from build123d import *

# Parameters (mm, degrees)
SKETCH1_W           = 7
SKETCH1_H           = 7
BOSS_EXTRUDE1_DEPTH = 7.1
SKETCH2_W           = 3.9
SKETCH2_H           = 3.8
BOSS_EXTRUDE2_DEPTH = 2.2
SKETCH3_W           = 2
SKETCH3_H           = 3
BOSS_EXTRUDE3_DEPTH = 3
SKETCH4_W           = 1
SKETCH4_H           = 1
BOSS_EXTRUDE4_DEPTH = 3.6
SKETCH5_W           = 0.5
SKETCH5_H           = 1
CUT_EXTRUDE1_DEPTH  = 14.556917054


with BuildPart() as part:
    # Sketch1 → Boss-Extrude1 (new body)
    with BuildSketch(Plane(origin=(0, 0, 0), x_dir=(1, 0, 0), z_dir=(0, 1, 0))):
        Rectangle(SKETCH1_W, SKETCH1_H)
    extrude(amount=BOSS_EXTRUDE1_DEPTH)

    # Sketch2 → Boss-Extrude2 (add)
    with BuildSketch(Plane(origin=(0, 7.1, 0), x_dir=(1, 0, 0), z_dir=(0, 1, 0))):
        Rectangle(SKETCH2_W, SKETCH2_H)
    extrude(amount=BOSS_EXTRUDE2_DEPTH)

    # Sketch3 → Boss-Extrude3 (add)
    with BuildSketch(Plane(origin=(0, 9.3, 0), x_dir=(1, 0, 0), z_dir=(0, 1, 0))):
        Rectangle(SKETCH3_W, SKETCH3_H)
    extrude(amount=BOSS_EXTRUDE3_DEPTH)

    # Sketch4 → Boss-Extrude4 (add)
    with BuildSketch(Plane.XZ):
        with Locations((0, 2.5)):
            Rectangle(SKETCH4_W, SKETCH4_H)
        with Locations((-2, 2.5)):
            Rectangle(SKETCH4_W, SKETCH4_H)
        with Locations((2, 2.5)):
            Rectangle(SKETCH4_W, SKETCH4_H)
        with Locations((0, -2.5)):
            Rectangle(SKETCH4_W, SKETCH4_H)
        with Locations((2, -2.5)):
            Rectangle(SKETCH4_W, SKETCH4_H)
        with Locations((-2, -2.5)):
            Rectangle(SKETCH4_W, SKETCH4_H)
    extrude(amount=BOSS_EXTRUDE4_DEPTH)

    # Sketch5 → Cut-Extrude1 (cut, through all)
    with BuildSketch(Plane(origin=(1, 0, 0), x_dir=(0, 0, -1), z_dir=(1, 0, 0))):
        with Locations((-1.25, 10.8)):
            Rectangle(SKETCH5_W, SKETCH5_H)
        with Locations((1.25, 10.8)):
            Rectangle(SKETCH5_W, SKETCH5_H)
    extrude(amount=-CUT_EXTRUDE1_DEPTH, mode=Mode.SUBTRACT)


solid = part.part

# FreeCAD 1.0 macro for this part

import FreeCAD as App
import Part
import Sketcher
from FreeCAD import Vector


def add_polygon(sketch, points):
    """Adds a closed chain of lines whose ends are joined by coincident constraints."""
    first, n = sketch.GeometryCount, len(points)
    for a, b in zip(points, points[1:] + points[:1]):
        sketch.addGeometry(Part.LineSegment(App.Vector(*a, 0), App.Vector(*b, 0)), False)
    for i in range(n):
        sketch.addConstraint(Sketcher.Constraint("Coincident", first + i, 2, first + (i + 1) % n, 1))

doc = App.newDocument("Part")
body = doc.addObject("PartDesign::Body", "Body")

sketch1 = body.newObject("Sketcher::SketchObject", "Sketch")
sketch1.AttachmentSupport = (doc.getObject("XZ_Plane"), [""])
sketch1.MapMode = "FlatFace"
add_polygon(sketch1, [(-3.5, -3.5), (-3.5, 3.5), (3.5, 3.5), (3.5, -3.5)])
sketch1.addConstraint(Sketcher.Constraint("Vertical", 0))
sketch1.addConstraint(Sketcher.Constraint("Horizontal", 1))
sketch1.addConstraint(Sketcher.Constraint("Vertical", 2))
sketch1.addConstraint(Sketcher.Constraint("Horizontal", 3))
sketch1.addConstraint(Sketcher.Constraint("Symmetric", 0, 2, 2, 2, -1, 1))
sketch1.addConstraint(Sketcher.Constraint("Equal", 3, 0))
sketch1.addConstraint(Sketcher.Constraint("DistanceX", 1, 1, 1, 2, 7.0))
pad1 = body.newObject("PartDesign::Pad", "Pad")
pad1.Profile = sketch1
pad1.Length = 7.1
pad1.Reversed = True

sketch2 = body.newObject("Sketcher::SketchObject", "Sketch001")
sketch2.AttachmentSupport = (doc.getObject("XZ_Plane"), [""])
sketch2.MapMode = "FlatFace"
sketch2.AttachmentOffset = App.Placement(Vector(0, 0, -7.1), App.Rotation())
add_polygon(sketch2, [(-1.95, -1.9), (-1.95, 1.9), (1.95, 1.9), (1.95, -1.9)])
sketch2.addConstraint(Sketcher.Constraint("Vertical", 0))
sketch2.addConstraint(Sketcher.Constraint("Horizontal", 1))
sketch2.addConstraint(Sketcher.Constraint("Vertical", 2))
sketch2.addConstraint(Sketcher.Constraint("Horizontal", 3))
sketch2.addConstraint(Sketcher.Constraint("Symmetric", 0, 2, 2, 2, -1, 1))
sketch2.addConstraint(Sketcher.Constraint("DistanceX", 1, 1, 1, 2, 3.9))
sketch2.addConstraint(Sketcher.Constraint("DistanceY", 0, 1, 0, 2, 3.8))
pad2 = body.newObject("PartDesign::Pad", "Pad001")
pad2.Profile = sketch2
pad2.Length = 2.2
pad2.Reversed = True

sketch3 = body.newObject("Sketcher::SketchObject", "Sketch002")
sketch3.AttachmentSupport = (doc.getObject("XZ_Plane"), [""])
sketch3.MapMode = "FlatFace"
sketch3.AttachmentOffset = App.Placement(Vector(0, 0, -9.3), App.Rotation())
add_polygon(sketch3, [(-1, -1.5), (-1, 1.5), (1, 1.5), (1, -1.5)])
sketch3.addConstraint(Sketcher.Constraint("Vertical", 0))
sketch3.addConstraint(Sketcher.Constraint("Horizontal", 1))
sketch3.addConstraint(Sketcher.Constraint("Vertical", 2))
sketch3.addConstraint(Sketcher.Constraint("Horizontal", 3))
sketch3.addConstraint(Sketcher.Constraint("Symmetric", 0, 2, 2, 2, -1, 1))
sketch3.addConstraint(Sketcher.Constraint("DistanceX", 1, 1, 1, 2, 2.0))
sketch3.addConstraint(Sketcher.Constraint("DistanceY", 0, 1, 0, 2, 3.0))
pad3 = body.newObject("PartDesign::Pad", "Pad002")
pad3.Profile = sketch3
pad3.Length = 3
pad3.Reversed = True

sketch4 = body.newObject("Sketcher::SketchObject", "Sketch003")
sketch4.AttachmentSupport = (doc.getObject("XZ_Plane"), [""])
sketch4.MapMode = "FlatFace"
add_polygon(sketch4, [(-0.5, 3), (-0.5, 2), (0.5, 2), (0.5, 3)])
add_polygon(sketch4, [(-2.5, 3), (-2.5, 2), (-1.5, 2), (-1.5, 3)])
add_polygon(sketch4, [(1.5, 3), (1.5, 2), (2.5, 2), (2.5, 3)])
add_polygon(sketch4, [(-0.5, -2), (-0.5, -3), (0.5, -3), (0.5, -2)])
add_polygon(sketch4, [(1.5, -2), (1.5, -3), (2.5, -3), (2.5, -2)])
add_polygon(sketch4, [(-2.5, -2), (-2.5, -3), (-1.5, -3), (-1.5, -2)])
sketch4.addConstraint(Sketcher.Constraint("Vertical", 0))
sketch4.addConstraint(Sketcher.Constraint("Horizontal", 1))
sketch4.addConstraint(Sketcher.Constraint("Vertical", 2))
sketch4.addConstraint(Sketcher.Constraint("Horizontal", 3))
sketch4.addConstraint(Sketcher.Constraint("Vertical", 4))
sketch4.addConstraint(Sketcher.Constraint("Horizontal", 5))
sketch4.addConstraint(Sketcher.Constraint("Vertical", 6))
sketch4.addConstraint(Sketcher.Constraint("Horizontal", 7))
sketch4.addConstraint(Sketcher.Constraint("Vertical", 8))
sketch4.addConstraint(Sketcher.Constraint("Horizontal", 9))
sketch4.addConstraint(Sketcher.Constraint("Vertical", 10))
sketch4.addConstraint(Sketcher.Constraint("Horizontal", 11))
sketch4.addConstraint(Sketcher.Constraint("Vertical", 12))
sketch4.addConstraint(Sketcher.Constraint("Horizontal", 13))
sketch4.addConstraint(Sketcher.Constraint("Vertical", 14))
sketch4.addConstraint(Sketcher.Constraint("Horizontal", 15))
sketch4.addConstraint(Sketcher.Constraint("Vertical", 16))
sketch4.addConstraint(Sketcher.Constraint("Horizontal", 17))
sketch4.addConstraint(Sketcher.Constraint("Vertical", 18))
sketch4.addConstraint(Sketcher.Constraint("Horizontal", 19))
sketch4.addConstraint(Sketcher.Constraint("Vertical", 20))
sketch4.addConstraint(Sketcher.Constraint("Horizontal", 21))
sketch4.addConstraint(Sketcher.Constraint("Vertical", 22))
sketch4.addConstraint(Sketcher.Constraint("Horizontal", 23))
sketch4.addConstraint(Sketcher.Constraint("Symmetric", 2, 2, 12, 2, -1, 1))
sketch4.addConstraint(Sketcher.Constraint("Symmetric", 0, 2, 14, 2, -1, 1))
sketch4.addConstraint(Sketcher.Constraint("Symmetric", 6, 2, 16, 2, -1, 1))
sketch4.addConstraint(Sketcher.Constraint("Symmetric", 4, 2, 18, 2, -1, 1))
sketch4.addConstraint(Sketcher.Constraint("Symmetric", 10, 2, 20, 2, -1, 1))
sketch4.addConstraint(Sketcher.Constraint("Symmetric", 8, 2, 22, 2, -1, 1))
sketch4.addConstraint(Sketcher.Constraint("Symmetric", 5, 2, 8, 2, -2))
sketch4.addConstraint(Sketcher.Constraint("Symmetric", 7, 2, 10, 2, -2))
sketch4.addConstraint(Sketcher.Constraint("Horizontal", 1, 2, 4, 2))
sketch4.addConstraint(Sketcher.Constraint("Horizontal", 3, 2, 6, 2))
sketch4.addConstraint(Sketcher.Constraint("Vertical", 3, 2, 12, 2))
sketch4.addConstraint(Sketcher.Constraint("Equal", 3, 5))
sketch4.addConstraint(Sketcher.Constraint("Equal", 23, 0))
sketch4.addConstraint(Sketcher.Constraint("DistanceX", 1, 1, 1, 2, 1.0))
sketch4.addConstraint(Sketcher.Constraint("DistanceY", -1, 1, 0, 2, 2.0))
sketch4.addConstraint(Sketcher.Constraint("DistanceX", 4, 2, 0, 2, 2.0))
pad4 = body.newObject("PartDesign::Pad", "Pad003")
pad4.Profile = sketch4
pad4.Length = 3.6

sketch5 = body.newObject("Sketcher::SketchObject", "Sketch004")
sketch5.AttachmentSupport = (doc.getObject("YZ_Plane"), [""])
sketch5.MapMode = "FlatFace"
sketch5.AttachmentOffset = App.Placement(Vector(0, 0, 1), App.Rotation())
add_polygon(sketch5, [(11.3, 1.5), (10.3, 1.5), (10.3, 1), (11.3, 1)])
add_polygon(sketch5, [(11.3, -1), (10.3, -1), (10.3, -1.5), (11.3, -1.5)])
sketch5.addConstraint(Sketcher.Constraint("Horizontal", 0))
sketch5.addConstraint(Sketcher.Constraint("Vertical", 1))
sketch5.addConstraint(Sketcher.Constraint("Horizontal", 2))
sketch5.addConstraint(Sketcher.Constraint("Vertical", 3))
sketch5.addConstraint(Sketcher.Constraint("Horizontal", 4))
sketch5.addConstraint(Sketcher.Constraint("Vertical", 5))
sketch5.addConstraint(Sketcher.Constraint("Horizontal", 6))
sketch5.addConstraint(Sketcher.Constraint("Vertical", 7))
sketch5.addConstraint(Sketcher.Constraint("Symmetric", 1, 2, 4, 2, -1))
sketch5.addConstraint(Sketcher.Constraint("Symmetric", 3, 2, 6, 2, -1))
sketch5.addConstraint(Sketcher.Constraint("DistanceX", 0, 2, 0, 1, 1.0))
sketch5.addConstraint(Sketcher.Constraint("DistanceY", 1, 2, 1, 1, 0.5))
sketch5.addConstraint(Sketcher.Constraint("DistanceY", -1, 1, 1, 2, 1.0))
sketch5.addConstraint(Sketcher.Constraint("DistanceX", -1, 1, 0, 2, 10.3))
pocket1 = body.newObject("PartDesign::Pocket", "Pocket")
pocket1.Profile = sketch5
pocket1.Type = "ThroughAll"

doc.recompute()
